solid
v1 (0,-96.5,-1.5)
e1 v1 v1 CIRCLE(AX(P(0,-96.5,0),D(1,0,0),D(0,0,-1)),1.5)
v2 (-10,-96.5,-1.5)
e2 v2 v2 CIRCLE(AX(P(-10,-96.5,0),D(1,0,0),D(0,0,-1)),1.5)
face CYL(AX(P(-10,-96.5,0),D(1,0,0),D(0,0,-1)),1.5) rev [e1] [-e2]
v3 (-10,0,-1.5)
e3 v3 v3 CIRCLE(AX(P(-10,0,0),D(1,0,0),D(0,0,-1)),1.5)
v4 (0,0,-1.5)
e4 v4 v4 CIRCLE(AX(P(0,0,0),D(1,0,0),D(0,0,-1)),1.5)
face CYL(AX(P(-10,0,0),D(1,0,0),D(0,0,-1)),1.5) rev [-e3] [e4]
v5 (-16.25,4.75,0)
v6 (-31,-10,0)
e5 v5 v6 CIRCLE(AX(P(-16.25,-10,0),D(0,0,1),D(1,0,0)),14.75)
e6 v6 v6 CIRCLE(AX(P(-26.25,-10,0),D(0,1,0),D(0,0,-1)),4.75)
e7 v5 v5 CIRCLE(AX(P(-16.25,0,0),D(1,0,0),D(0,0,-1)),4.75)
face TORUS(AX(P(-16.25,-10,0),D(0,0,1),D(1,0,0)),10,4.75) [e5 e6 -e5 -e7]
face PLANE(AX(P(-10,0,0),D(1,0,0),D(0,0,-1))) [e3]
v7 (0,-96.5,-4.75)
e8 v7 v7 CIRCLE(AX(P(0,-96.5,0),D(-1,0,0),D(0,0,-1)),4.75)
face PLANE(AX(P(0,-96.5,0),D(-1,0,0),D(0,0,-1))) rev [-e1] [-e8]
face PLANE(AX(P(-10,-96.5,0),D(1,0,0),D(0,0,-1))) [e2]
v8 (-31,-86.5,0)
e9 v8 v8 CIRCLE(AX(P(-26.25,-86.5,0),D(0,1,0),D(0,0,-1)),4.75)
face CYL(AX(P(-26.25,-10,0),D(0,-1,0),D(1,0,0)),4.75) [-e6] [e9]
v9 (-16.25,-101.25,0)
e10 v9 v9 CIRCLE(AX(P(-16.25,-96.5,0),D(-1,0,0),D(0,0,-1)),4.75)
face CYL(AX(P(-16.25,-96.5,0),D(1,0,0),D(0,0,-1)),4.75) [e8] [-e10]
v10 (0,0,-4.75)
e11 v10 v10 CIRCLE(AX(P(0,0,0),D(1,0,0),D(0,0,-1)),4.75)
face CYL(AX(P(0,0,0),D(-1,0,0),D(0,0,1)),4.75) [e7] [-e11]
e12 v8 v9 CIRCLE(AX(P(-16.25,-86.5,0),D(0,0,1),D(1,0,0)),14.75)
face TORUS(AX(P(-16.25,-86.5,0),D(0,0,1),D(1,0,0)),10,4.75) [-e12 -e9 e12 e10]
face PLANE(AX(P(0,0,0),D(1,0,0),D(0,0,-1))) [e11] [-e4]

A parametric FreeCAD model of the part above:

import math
import FreeCAD as App
import Part
import Sketcher

V = App.Vector

doc = App.newDocument("Part")
body = doc.addObject("PartDesign::Body", "Body")

# Sketch on YZ plane
sketch1 = body.newObject("Sketcher::SketchObject", "Sketch")
sketch1.AttachmentSupport = (doc.getObject("YZ_Plane"), [""])
sketch1.MapMode = "FlatFace"
sketch1.addGeometry(Part.Circle(V(0, 0, 0), V(0, 0, 1), 4.8), False)
sketch1.addConstraint([
    Sketcher.Constraint("Coincident", 0, 3, -1, 1),
    Sketcher.Constraint("Diameter", 0, 9.5),
])

# Sketch on XY plane
sketch2 = body.newObject("Sketcher::SketchObject", "Sketch001")
sketch2.AttachmentSupport = (doc.getObject("XY_Plane"), [""])
sketch2.MapMode = "FlatFace"
sketch2.addGeometry([
    Part.LineSegment(V(0, 0, 0), V(-16, 0, 0)),  # 0
    Part.ArcOfCircle(Part.Circle(V(-16, -10, 0), V(0, 0, 1), 10), math.radians(90), math.radians(180)),  # 1
    Part.LineSegment(V(-26, -10, 0), V(-26, -86, 0)),  # 2
    Part.ArcOfCircle(Part.Circle(V(-16, -86, 0), V(0, 0, 1), 10), math.radians(180), math.radians(270)),  # 3
    Part.LineSegment(V(-16, -96, 0), V(0, -96, 0)),  # 4
], False)
sketch2.addConstraint([
    Sketcher.Constraint("Tangent", 0, 2, 1, 1),
    Sketcher.Constraint("Tangent", 1, 2, 2, 1),
    Sketcher.Constraint("Tangent", 2, 2, 3, 1),
    Sketcher.Constraint("Tangent", 3, 2, 4, 1),
    Sketcher.Constraint("Horizontal", 0),
    Sketcher.Constraint("Vertical", 2),
    Sketcher.Constraint("Horizontal", 4),
    Sketcher.Constraint("Coincident", 0, 1, -1, 1),
    Sketcher.Constraint("Equal", 1, 3),
    Sketcher.Constraint("PointOnObject", 4, 2, -2),
    Sketcher.Constraint("Radius", 1, 10.0),
    Sketcher.Constraint("DistanceY", 2, 2, 2, 1, 76.5),
    Sketcher.Constraint("DistanceX", 0, 2, 0, 1, 16.25),
])
doc.recompute()

additivepipe = body.newObject("PartDesign::AdditivePipe", "AdditivePipe")
additivepipe.Profile = sketch1
additivepipe.Spine = (sketch2, ["Edge1", "Edge2", "Edge3", "Edge4", "Edge5"])

# Sketch on YZ plane
sketch3 = body.newObject("Sketcher::SketchObject", "Sketch002")
sketch3.AttachmentSupport = (doc.getObject("YZ_Plane"), [""])
sketch3.MapMode = "FlatFace"
sketch3.addGeometry([
    Part.Circle(V(0, 0, 0), V(0, 0, 1), 1.5),
    Part.Circle(V(-96.5, 0, 0), V(0, 0, 1), 1.5),
], False)
sketch3.addConstraint([
    Sketcher.Constraint("Coincident", 0, 3, -1, 1),
    Sketcher.Constraint("Equal", 0, 1),
    Sketcher.Constraint("PointOnObject", 1, 3, -1),
    Sketcher.Constraint("Diameter", 0, 3.0),
    Sketcher.Constraint("DistanceX", 1, 3, -1, 1, 96.5),
])
pocket1 = body.newObject("PartDesign::Pocket", "Pocket")
pocket1.Profile = sketch3
pocket1.Length = 10

doc.recompute()
